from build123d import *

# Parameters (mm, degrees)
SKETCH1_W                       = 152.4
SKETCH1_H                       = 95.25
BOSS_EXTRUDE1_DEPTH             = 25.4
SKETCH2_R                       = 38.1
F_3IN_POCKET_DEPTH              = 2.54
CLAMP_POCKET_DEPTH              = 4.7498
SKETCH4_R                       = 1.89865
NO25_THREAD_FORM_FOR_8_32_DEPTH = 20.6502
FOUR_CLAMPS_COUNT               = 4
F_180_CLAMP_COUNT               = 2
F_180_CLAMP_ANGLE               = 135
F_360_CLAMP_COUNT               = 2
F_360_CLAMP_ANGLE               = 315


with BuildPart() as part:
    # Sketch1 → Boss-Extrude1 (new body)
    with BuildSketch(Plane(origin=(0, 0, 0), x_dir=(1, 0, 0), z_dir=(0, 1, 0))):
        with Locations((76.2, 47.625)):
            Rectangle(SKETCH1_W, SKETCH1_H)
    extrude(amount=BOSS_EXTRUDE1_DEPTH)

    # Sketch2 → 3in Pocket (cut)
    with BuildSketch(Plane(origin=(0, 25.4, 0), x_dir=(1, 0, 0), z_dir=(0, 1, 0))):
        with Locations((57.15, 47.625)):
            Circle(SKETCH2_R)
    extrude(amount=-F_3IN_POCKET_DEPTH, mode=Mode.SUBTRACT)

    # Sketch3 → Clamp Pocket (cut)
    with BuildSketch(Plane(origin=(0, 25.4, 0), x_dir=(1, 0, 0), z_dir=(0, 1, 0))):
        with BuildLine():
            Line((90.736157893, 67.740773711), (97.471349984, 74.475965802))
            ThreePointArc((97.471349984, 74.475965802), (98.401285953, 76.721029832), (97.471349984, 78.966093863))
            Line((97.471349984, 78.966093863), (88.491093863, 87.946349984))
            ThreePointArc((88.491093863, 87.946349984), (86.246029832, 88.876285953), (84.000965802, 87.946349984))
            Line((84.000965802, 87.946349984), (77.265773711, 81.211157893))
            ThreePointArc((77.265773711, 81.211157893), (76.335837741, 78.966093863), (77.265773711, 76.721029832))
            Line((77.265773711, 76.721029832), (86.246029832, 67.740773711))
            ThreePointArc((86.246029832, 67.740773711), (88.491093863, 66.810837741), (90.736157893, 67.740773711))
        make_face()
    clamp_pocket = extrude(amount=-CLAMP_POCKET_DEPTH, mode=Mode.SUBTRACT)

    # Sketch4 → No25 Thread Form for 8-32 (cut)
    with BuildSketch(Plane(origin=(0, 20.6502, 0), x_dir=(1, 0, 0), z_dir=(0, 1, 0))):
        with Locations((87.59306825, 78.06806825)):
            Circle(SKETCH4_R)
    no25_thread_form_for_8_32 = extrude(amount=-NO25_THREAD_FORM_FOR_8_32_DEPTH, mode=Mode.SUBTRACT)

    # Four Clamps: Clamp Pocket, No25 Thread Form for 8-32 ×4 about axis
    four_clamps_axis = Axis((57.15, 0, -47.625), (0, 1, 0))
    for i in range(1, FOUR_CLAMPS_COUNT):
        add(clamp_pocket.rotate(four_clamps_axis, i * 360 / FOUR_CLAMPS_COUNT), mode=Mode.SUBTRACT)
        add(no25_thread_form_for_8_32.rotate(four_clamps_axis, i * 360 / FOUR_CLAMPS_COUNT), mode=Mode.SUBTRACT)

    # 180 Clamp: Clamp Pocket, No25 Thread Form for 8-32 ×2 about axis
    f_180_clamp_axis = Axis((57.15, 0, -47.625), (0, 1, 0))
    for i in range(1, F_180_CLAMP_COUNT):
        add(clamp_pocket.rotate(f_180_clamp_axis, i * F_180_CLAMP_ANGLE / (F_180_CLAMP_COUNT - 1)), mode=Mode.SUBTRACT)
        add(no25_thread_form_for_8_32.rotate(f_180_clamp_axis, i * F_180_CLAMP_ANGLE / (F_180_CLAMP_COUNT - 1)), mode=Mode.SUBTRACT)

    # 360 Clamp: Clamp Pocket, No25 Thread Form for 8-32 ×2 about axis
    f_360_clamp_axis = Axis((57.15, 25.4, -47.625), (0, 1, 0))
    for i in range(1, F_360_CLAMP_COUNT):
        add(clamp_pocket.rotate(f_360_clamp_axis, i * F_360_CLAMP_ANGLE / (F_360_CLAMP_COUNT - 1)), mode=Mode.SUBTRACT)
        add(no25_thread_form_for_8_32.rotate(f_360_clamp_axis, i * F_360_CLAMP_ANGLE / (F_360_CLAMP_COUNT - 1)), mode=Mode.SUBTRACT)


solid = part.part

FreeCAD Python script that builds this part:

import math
import FreeCAD as App
import Part
import Sketcher
Q = App.Units.Quantity


def add_polygon(sketch, points):
    """Adds a closed chain of lines whose ends are joined by coincident constraints."""
    first, n = sketch.GeometryCount, len(points)
    for a, b in zip(points, points[1:] + points[:1]):
        sketch.addGeometry(Part.LineSegment(App.Vector(*a, 0), App.Vector(*b, 0)), False)
    for i in range(n):
        sketch.addConstraint(Sketcher.Constraint("Coincident", first + i, 2, first + (i + 1) % n, 1))

doc = App.newDocument("Part")
body = doc.addObject("PartDesign::Body", "Body")

# Sketch on XZ plane
sketch1 = doc.addObject("Sketcher::SketchObject", "Sketch")
body.addObject(sketch1)
sketch1.AttachmentSupport = (doc.XZ_Plane, [""])
sketch1.MapMode = "FlatFace"
add_polygon(sketch1, [(0, -95), (0, 0), (152, 0), (152, -95)])  # lines 0-3
sketch1.addConstraint([
    Sketcher.Constraint("Vertical", 0),
    Sketcher.Constraint("Horizontal", 1),
    Sketcher.Constraint("Vertical", 2),
    Sketcher.Constraint("Horizontal", 3),
    Sketcher.Constraint("Coincident", 0, 2, -1, 1),
    Sketcher.Constraint("DistanceX", 1, 1, 1, 2, Q("6 in")),
    Sketcher.Constraint("DistanceY", 0, 1, 0, 2, Q("3.75 in")),
])
pad1 = doc.addObject("PartDesign::Pad", "Pad")
body.addObject(pad1)
pad1.Profile = sketch1
pad1.Length = Q("1 in")
pad1.Reversed = True

# Sketch on XZ plane
sketch2 = doc.addObject("Sketcher::SketchObject", "Sketch001")
body.addObject(sketch2)
sketch2.AttachmentSupport = (doc.XZ_Plane, [""])
sketch2.MapMode = "FlatFace"
sketch2.AttachmentOffset = App.Placement(App.Vector(0, 0, -1 * 25.4), App.Rotation())
sketch2.addGeometry(Part.Circle(App.Vector(57, -48, 0), App.Vector(0, 0, 1), 38), False)
sketch2.addConstraint([
    Sketcher.Constraint("Diameter", 0, Q("3 in")),
    Sketcher.Constraint("DistanceX", -1, 1, 0, 3, Q("2.25 in")),
    Sketcher.Constraint("DistanceY", 0, 3, -1, 1, Q("1.875 in")),
])
pocket1 = doc.addObject("PartDesign::Pocket", "Pocket")
body.addObject(pocket1)
pocket1.Profile = sketch2
pocket1.Length = Q("0.1 in")
pocket1.Reversed = True

# Sketch on XZ plane
sketch3 = doc.addObject("Sketcher::SketchObject", "Sketch002")
body.addObject(sketch3)
sketch3.AttachmentSupport = (doc.XZ_Plane, [""])
sketch3.MapMode = "FlatFace"
sketch3.AttachmentOffset = App.Placement(App.Vector(0, 0, -1 * 25.4), App.Rotation())
sketch3.addGeometry([
    Part.LineSegment(App.Vector(90.7, -67.7, 0), App.Vector(97.5, -74.5, 0)),  # 0
    Part.ArcOfCircle(Part.Circle(App.Vector(95.2, -76.7, 0), App.Vector(0, 0, 1), 3.2), math.radians(-45), math.radians(45)),  # 1
    Part.LineSegment(App.Vector(97.5, -79, 0), App.Vector(88.5, -87.9, 0)),  # 2
    Part.ArcOfCircle(Part.Circle(App.Vector(86.2, -85.7, 0), App.Vector(0, 0, 1), 3.2), math.radians(-135), math.radians(-45)),  # 3
    Part.LineSegment(App.Vector(84, -87.9, 0), App.Vector(77.3, -81.2, 0)),  # 4
    Part.ArcOfCircle(Part.Circle(App.Vector(79.5, -79, 0), App.Vector(0, 0, 1), 3.2), math.radians(135), math.radians(225)),  # 5
    Part.LineSegment(App.Vector(77.3, -76.7, 0), App.Vector(86.2, -67.7, 0)),  # 6
    Part.ArcOfCircle(Part.Circle(App.Vector(88.5, -70, 0), App.Vector(0, 0, 1), 3.2), math.radians(45), math.radians(135)),  # 7
], False)
sketch3.addConstraint([
    Sketcher.Constraint("Tangent", 0, 2, 1, 2),
    Sketcher.Constraint("Tangent", 1, 1, 2, 1),
    Sketcher.Constraint("Tangent", 2, 2, 3, 2),
    Sketcher.Constraint("Tangent", 3, 1, 4, 1),
    Sketcher.Constraint("Tangent", 4, 2, 5, 2),
    Sketcher.Constraint("Tangent", 5, 1, 6, 1),
    Sketcher.Constraint("Tangent", 6, 2, 7, 2),
    Sketcher.Constraint("Tangent", 7, 1, 0, 1),
    Sketcher.Constraint("Equal", 1, 3),
    Sketcher.Constraint("Equal", 3, 5),
    Sketcher.Constraint("Equal", 5, 7),
    Sketcher.Constraint("Perpendicular", 0, 2),
    Sketcher.Constraint("Perpendicular", 2, 4),
    Sketcher.Constraint("Perpendicular", 4, 6),
    Sketcher.Constraint("Horizontal", 5, 3, 1, 1),
    Sketcher.Constraint("Horizontal", 2, 2, 3, 1),
    Sketcher.Constraint("Radius", 1, Q("0.125 in")),
    Sketcher.Constraint("Distance", 2, Q("0.5 in")),
    Sketcher.Constraint("DistanceY", 1, 3, -1, 1, 76.72103),
    Sketcher.Constraint("DistanceX", -1, 1, 3, 3, 86.24603),
])
pocket2 = doc.addObject("PartDesign::Pocket", "Pocket001")
body.addObject(pocket2)
pocket2.Profile = sketch3
pocket2.Length = Q("0.187 in")
pocket2.Reversed = True

# Sketch on XZ plane
sketch4 = doc.addObject("Sketcher::SketchObject", "Sketch003")
body.addObject(sketch4)
sketch4.AttachmentSupport = (doc.XZ_Plane, [""])
sketch4.MapMode = "FlatFace"
sketch4.AttachmentOffset = App.Placement(App.Vector(0, 0, -0.813 * 25.4), App.Rotation())
sketch4.addGeometry(Part.Circle(App.Vector(87.6, -78.1, 0), App.Vector(0, 0, 1), 1.9), False)
sketch4.addConstraint([
    Sketcher.Constraint("Diameter", 0, Q("0.1495 in")),
    Sketcher.Constraint("DistanceX", -1, 1, 0, 3, 87.593068),
    Sketcher.Constraint("DistanceY", 0, 3, -1, 1, 78.068068),
])
pocket3 = doc.addObject("PartDesign::Pocket", "Pocket002")
body.addObject(pocket3)
pocket3.Profile = sketch4
pocket3.Length = Q("0.813 in")
pocket3.Reversed = True
doc.recompute()

datumline = doc.addObject("PartDesign::Line", "DatumLine")
body.addObject(datumline)
datumline.Placement = App.Placement(App.Vector(57.15, 0, -47.625), App.Rotation(App.Vector(0, 0, 1), App.Vector(0, 1, 0)))
polarpattern = doc.addObject("PartDesign::PolarPattern", "PolarPattern")
body.addObject(polarpattern)
polarpattern.Originals = [pocket2, pocket3]
polarpattern.Axis = (datumline, [""])
polarpattern.Angle = 360
polarpattern.Occurrences = 4
body.Tip = polarpattern
doc.recompute()

datumline2 = doc.addObject("PartDesign::Line", "DatumLine001")
body.addObject(datumline2)
datumline2.Placement = App.Placement(App.Vector(57.15, 0, -47.625), App.Rotation(App.Vector(0, 0, 1), App.Vector(0, 1, 0)))
polarpattern2 = doc.addObject("PartDesign::PolarPattern", "PolarPattern001")
body.addObject(polarpattern2)
polarpattern2.Originals = [pocket2, pocket3]
polarpattern2.Axis = (datumline2, [""])
polarpattern2.Angle = 135
polarpattern2.Occurrences = 2
body.Tip = polarpattern2
doc.recompute()

datumline3 = doc.addObject("PartDesign::Line", "DatumLine002")
body.addObject(datumline3)
datumline3.Placement = App.Placement(App.Vector(57.15, 0, -47.625), App.Rotation(App.Vector(0, 0, 1), App.Vector(0, 1, 0)))
polarpattern3 = doc.addObject("PartDesign::PolarPattern", "PolarPattern002")
body.addObject(polarpattern3)
polarpattern3.Originals = [pocket2, pocket3]
polarpattern3.Axis = (datumline3, [""])
polarpattern3.Angle = 315
polarpattern3.Occurrences = 2
body.Tip = polarpattern3

doc.recompute()
